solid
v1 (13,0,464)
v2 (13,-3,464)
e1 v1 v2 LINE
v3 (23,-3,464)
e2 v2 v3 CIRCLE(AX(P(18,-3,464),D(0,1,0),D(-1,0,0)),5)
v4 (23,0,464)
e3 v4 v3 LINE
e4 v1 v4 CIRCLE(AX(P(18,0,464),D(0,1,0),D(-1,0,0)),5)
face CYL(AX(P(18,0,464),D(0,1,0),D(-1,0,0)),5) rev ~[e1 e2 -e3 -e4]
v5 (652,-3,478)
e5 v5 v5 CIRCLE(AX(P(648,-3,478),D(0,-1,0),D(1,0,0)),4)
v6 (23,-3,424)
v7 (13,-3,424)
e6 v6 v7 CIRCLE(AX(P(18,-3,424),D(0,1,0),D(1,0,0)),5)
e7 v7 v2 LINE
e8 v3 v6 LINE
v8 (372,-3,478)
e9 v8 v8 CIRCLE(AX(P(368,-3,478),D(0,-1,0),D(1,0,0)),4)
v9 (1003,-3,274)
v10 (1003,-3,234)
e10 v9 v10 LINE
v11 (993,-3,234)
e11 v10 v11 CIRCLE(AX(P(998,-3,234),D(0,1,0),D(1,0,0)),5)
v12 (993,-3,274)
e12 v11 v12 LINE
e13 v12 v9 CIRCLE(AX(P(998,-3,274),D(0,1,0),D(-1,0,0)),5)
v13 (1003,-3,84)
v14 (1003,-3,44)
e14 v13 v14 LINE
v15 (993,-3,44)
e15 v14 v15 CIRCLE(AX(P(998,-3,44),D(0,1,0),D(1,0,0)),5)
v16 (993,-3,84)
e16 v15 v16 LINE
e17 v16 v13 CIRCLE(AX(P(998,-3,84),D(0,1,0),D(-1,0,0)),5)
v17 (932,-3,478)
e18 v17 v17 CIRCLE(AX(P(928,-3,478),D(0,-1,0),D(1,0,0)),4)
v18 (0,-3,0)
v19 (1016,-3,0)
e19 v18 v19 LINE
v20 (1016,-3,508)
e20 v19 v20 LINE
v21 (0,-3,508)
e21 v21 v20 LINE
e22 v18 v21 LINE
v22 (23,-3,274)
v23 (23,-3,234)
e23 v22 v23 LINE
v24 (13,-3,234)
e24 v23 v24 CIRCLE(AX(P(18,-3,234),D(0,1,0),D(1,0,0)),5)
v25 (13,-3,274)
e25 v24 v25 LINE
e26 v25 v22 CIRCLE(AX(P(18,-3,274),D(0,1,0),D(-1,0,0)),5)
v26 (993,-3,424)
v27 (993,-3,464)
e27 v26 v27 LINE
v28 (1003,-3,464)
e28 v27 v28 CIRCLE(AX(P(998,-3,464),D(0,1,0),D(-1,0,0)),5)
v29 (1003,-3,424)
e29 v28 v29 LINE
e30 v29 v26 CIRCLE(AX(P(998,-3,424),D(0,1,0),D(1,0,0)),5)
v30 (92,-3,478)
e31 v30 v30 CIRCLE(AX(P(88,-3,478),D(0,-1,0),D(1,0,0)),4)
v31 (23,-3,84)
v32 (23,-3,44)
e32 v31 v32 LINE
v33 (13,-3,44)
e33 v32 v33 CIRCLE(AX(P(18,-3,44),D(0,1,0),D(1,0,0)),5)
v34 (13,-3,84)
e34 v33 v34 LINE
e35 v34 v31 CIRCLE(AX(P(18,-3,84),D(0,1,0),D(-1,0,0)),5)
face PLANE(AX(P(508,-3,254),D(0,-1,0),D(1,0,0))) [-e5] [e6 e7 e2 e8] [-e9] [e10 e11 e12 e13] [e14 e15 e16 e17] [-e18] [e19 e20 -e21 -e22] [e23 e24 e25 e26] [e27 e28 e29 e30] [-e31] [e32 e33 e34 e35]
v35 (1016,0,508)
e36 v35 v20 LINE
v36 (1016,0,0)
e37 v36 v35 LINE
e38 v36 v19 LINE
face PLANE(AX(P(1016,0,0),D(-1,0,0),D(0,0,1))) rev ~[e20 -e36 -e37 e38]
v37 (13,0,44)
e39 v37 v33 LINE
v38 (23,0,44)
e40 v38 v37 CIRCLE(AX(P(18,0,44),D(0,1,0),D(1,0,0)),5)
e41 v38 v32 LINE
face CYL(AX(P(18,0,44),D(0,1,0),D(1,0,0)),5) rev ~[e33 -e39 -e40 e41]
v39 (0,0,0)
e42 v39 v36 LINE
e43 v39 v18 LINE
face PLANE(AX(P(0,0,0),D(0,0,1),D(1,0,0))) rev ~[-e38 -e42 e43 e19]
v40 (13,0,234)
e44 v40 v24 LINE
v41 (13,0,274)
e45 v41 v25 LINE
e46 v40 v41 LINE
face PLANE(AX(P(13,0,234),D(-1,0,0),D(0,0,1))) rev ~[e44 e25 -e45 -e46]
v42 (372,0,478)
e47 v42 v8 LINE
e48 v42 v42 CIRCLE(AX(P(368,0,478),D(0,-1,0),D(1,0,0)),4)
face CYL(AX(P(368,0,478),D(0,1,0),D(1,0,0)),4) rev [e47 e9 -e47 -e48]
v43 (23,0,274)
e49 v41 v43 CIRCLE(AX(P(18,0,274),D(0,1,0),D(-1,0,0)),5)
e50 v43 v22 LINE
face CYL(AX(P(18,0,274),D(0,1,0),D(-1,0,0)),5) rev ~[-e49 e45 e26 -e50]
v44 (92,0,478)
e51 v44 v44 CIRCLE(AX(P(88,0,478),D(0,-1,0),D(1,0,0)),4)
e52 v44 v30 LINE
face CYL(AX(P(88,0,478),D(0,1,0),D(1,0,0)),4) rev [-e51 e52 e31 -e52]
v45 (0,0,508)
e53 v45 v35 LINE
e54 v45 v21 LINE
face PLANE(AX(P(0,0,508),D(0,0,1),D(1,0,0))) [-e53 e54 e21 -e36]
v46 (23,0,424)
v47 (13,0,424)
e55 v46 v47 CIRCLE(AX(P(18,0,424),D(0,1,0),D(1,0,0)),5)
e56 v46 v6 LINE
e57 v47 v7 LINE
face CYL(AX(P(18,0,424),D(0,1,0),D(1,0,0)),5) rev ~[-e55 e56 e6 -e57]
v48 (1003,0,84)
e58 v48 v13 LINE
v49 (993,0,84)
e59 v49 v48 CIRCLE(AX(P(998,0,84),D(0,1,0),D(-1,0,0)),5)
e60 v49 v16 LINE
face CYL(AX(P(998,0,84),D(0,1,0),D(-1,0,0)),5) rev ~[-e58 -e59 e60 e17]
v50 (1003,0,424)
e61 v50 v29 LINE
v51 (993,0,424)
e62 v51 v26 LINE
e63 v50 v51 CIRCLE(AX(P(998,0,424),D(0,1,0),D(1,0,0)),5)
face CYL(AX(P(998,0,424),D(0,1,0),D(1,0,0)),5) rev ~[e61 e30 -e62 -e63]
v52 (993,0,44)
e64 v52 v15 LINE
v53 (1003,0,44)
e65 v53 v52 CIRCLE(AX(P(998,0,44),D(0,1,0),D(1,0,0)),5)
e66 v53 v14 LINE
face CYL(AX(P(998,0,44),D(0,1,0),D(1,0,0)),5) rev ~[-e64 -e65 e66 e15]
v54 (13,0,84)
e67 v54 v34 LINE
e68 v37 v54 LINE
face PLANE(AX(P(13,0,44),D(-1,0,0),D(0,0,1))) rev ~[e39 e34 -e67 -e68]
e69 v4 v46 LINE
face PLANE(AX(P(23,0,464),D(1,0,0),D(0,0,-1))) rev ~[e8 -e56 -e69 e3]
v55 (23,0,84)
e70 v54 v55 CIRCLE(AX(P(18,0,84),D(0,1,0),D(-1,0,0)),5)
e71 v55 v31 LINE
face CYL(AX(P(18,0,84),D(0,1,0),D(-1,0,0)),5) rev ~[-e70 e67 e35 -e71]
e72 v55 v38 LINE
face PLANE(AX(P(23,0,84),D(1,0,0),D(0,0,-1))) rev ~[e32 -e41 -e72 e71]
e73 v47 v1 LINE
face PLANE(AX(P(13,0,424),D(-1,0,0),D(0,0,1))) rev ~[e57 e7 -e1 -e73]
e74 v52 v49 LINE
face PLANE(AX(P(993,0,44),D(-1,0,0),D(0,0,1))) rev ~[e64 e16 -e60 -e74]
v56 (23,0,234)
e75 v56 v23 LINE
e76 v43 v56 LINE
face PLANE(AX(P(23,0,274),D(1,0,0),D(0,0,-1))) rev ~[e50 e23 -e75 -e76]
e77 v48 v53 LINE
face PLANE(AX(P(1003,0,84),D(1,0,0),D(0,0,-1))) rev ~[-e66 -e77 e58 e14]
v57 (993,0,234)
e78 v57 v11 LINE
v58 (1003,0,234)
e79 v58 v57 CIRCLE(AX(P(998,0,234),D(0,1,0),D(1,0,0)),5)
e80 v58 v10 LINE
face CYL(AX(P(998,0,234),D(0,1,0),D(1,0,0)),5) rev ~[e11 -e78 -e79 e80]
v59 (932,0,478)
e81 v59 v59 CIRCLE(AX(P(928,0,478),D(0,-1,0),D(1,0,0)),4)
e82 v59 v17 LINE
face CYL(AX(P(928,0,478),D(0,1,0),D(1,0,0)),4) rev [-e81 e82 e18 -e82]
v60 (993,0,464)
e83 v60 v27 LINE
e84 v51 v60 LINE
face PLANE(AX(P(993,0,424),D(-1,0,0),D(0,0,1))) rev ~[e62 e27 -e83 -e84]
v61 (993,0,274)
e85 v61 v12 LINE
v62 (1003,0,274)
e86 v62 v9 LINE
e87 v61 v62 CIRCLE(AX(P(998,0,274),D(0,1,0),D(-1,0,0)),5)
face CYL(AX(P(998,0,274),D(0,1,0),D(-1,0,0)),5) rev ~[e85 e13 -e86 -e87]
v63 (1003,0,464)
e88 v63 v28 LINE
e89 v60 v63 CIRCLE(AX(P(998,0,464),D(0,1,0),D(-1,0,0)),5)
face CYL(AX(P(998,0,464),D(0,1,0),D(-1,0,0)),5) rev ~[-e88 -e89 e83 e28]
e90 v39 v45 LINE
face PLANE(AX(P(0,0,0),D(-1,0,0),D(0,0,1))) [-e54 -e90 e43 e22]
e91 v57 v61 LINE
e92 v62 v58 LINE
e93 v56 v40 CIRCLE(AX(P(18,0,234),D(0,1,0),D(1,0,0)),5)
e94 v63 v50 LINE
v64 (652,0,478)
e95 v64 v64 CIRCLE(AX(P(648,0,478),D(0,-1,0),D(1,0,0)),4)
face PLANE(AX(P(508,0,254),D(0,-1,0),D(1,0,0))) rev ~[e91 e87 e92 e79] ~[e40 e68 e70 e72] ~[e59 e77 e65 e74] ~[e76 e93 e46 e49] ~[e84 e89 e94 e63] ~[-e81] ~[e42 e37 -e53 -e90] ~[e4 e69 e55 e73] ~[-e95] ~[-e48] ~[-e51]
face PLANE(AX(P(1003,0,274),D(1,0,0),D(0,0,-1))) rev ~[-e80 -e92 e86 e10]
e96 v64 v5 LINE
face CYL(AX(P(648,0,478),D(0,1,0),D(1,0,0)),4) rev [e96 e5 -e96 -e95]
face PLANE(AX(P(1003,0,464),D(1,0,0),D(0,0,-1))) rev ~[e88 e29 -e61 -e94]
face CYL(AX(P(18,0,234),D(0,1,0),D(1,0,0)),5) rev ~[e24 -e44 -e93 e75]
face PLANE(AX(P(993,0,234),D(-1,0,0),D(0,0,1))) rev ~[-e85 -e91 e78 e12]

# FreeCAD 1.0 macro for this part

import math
import FreeCAD as App
import Part
import Sketcher
Q = App.Units.Quantity


def add_polygon(sketch, points):
    """Adds a closed chain of lines whose ends are joined by coincident constraints."""
    first, n = sketch.GeometryCount, len(points)
    for a, b in zip(points, points[1:] + points[:1]):
        sketch.addGeometry(Part.LineSegment(App.Vector(*a, 0), App.Vector(*b, 0)), False)
    for i in range(n):
        sketch.addConstraint(Sketcher.Constraint("Coincident", first + i, 2, first + (i + 1) % n, 1))

doc = App.newDocument("Part")
params = doc.addObject("Spreadsheet::Sheet", "Params")
for row, (alias, value) in enumerate([
    ("sketch1_diameter", "8 mm"),
    ("sketch1_radius", "5 mm"),
    ("sketch1_width", "1016 mm"),
    ("sketch1_height", "508 mm"),
    ("sketch1_height2", "40 mm"),
    ("pad1_length", "3 mm"),
], start=1):
    params.set(f"A{row}", alias)
    params.set(f"B{row}", "=" + value)
    params.setAlias(f"B{row}", alias)

body = doc.addObject("PartDesign::Body", "Body")

# Sketch on XZ plane
sketch1 = body.newObject("Sketcher::SketchObject", "Sketch")
sketch1.AttachmentSupport = (doc.getObject("XZ_Plane"), [""])
sketch1.MapMode = "FlatFace"
add_polygon(sketch1, [(0, 508), (0, 0), (1016, 0), (1016, 508)])  # lines 0-3
sketch1.addGeometry(Part.LineSegment(App.Vector(13, 44, 0), App.Vector(13, 84, 0)), False)  # 4
sketch1.addGeometry(Part.ArcOfCircle(Part.Circle(App.Vector(18, 84, 0), App.Vector(0, 0, 1), 5), math.radians(0), math.radians(180)), False)  # 5
sketch1.addGeometry(Part.LineSegment(App.Vector(23, 84, 0), App.Vector(23, 44, 0)), False)  # 6
sketch1.addGeometry(Part.ArcOfCircle(Part.Circle(App.Vector(18, 44, 0), App.Vector(0, 0, 1), 5), math.radians(180), math.radians(360)), False)  # 7
sketch1.addGeometry(Part.LineSegment(App.Vector(13, 234, 0), App.Vector(13, 274, 0)), False)  # 8
sketch1.addGeometry(Part.ArcOfCircle(Part.Circle(App.Vector(18, 274, 0), App.Vector(0, 0, 1), 5), math.radians(0), math.radians(180)), False)  # 9
sketch1.addGeometry(Part.LineSegment(App.Vector(23, 274, 0), App.Vector(23, 234, 0)), False)  # 10
sketch1.addGeometry(Part.ArcOfCircle(Part.Circle(App.Vector(18, 234, 0), App.Vector(0, 0, 1), 5), math.radians(180), math.radians(360)), False)  # 11
sketch1.addGeometry(Part.LineSegment(App.Vector(1003, 84, 0), App.Vector(1003, 44, 0)), False)  # 12
sketch1.addGeometry(Part.ArcOfCircle(Part.Circle(App.Vector(998, 44, 0), App.Vector(0, 0, 1), 5), math.radians(180), math.radians(360)), False)  # 13
sketch1.addGeometry(Part.LineSegment(App.Vector(993, 44, 0), App.Vector(993, 84, 0)), False)  # 14
sketch1.addGeometry(Part.ArcOfCircle(Part.Circle(App.Vector(998, 84, 0), App.Vector(0, 0, 1), 5), math.radians(0), math.radians(180)), False)  # 15
sketch1.addGeometry(Part.LineSegment(App.Vector(993, 234, 0), App.Vector(993, 274, 0)), False)  # 16
sketch1.addGeometry(Part.ArcOfCircle(Part.Circle(App.Vector(998, 274, 0), App.Vector(0, 0, 1), 5), math.radians(0), math.radians(180)), False)  # 17
sketch1.addGeometry(Part.LineSegment(App.Vector(1003, 274, 0), App.Vector(1003, 234, 0)), False)  # 18
sketch1.addGeometry(Part.ArcOfCircle(Part.Circle(App.Vector(998, 234, 0), App.Vector(0, 0, 1), 5), math.radians(180), math.radians(360)), False)  # 19
sketch1.addGeometry(Part.LineSegment(App.Vector(13, 424, 0), App.Vector(13, 464, 0)), False)  # 20
sketch1.addGeometry(Part.ArcOfCircle(Part.Circle(App.Vector(18, 464, 0), App.Vector(0, 0, 1), 5), math.radians(0), math.radians(180)), False)  # 21
sketch1.addGeometry(Part.LineSegment(App.Vector(23, 464, 0), App.Vector(23, 424, 0)), False)  # 22
sketch1.addGeometry(Part.ArcOfCircle(Part.Circle(App.Vector(18, 424, 0), App.Vector(0, 0, 1), 5), math.radians(180), math.radians(360)), False)  # 23
sketch1.addGeometry(Part.Circle(App.Vector(88, 478, 0), App.Vector(0, 0, 1), 4), False)  # 24
sketch1.addGeometry(Part.Circle(App.Vector(368, 478, 0), App.Vector(0, 0, 1), 4), False)  # 25
sketch1.addGeometry(Part.Circle(App.Vector(648, 478, 0), App.Vector(0, 0, 1), 4), False)  # 26
sketch1.addGeometry(Part.LineSegment(App.Vector(993, 424, 0), App.Vector(993, 464, 0)), False)  # 27
sketch1.addGeometry(Part.ArcOfCircle(Part.Circle(App.Vector(998, 464, 0), App.Vector(0, 0, 1), 5), math.radians(0), math.radians(180)), False)  # 28
sketch1.addGeometry(Part.LineSegment(App.Vector(1003, 464, 0), App.Vector(1003, 424, 0)), False)  # 29
sketch1.addGeometry(Part.ArcOfCircle(Part.Circle(App.Vector(998, 424, 0), App.Vector(0, 0, 1), 5), math.radians(180), math.radians(360)), False)  # 30
sketch1.addGeometry(Part.Circle(App.Vector(928, 478, 0), App.Vector(0, 0, 1), 4), False)  # 31
sketch1.addConstraint(Sketcher.Constraint("Tangent", 4, 2, 5, 2))
sketch1.addConstraint(Sketcher.Constraint("Tangent", 5, 1, 6, 1))
sketch1.addConstraint(Sketcher.Constraint("Tangent", 6, 2, 7, 2))
sketch1.addConstraint(Sketcher.Constraint("Tangent", 7, 1, 4, 1))
sketch1.addConstraint(Sketcher.Constraint("Tangent", 8, 2, 9, 2))
sketch1.addConstraint(Sketcher.Constraint("Tangent", 9, 1, 10, 1))
sketch1.addConstraint(Sketcher.Constraint("Tangent", 10, 2, 11, 2))
sketch1.addConstraint(Sketcher.Constraint("Tangent", 11, 1, 8, 1))
sketch1.addConstraint(Sketcher.Constraint("Tangent", 12, 2, 13, 2))
sketch1.addConstraint(Sketcher.Constraint("Tangent", 13, 1, 14, 1))
sketch1.addConstraint(Sketcher.Constraint("Tangent", 14, 2, 15, 2))
sketch1.addConstraint(Sketcher.Constraint("Tangent", 15, 1, 12, 1))
sketch1.addConstraint(Sketcher.Constraint("Tangent", 16, 2, 17, 2))
sketch1.addConstraint(Sketcher.Constraint("Tangent", 17, 1, 18, 1))
sketch1.addConstraint(Sketcher.Constraint("Tangent", 18, 2, 19, 2))
sketch1.addConstraint(Sketcher.Constraint("Tangent", 19, 1, 16, 1))
sketch1.addConstraint(Sketcher.Constraint("Tangent", 20, 2, 21, 2))
sketch1.addConstraint(Sketcher.Constraint("Tangent", 21, 1, 22, 1))
sketch1.addConstraint(Sketcher.Constraint("Tangent", 22, 2, 23, 2))
sketch1.addConstraint(Sketcher.Constraint("Tangent", 23, 1, 20, 1))
sketch1.addConstraint(Sketcher.Constraint("Tangent", 27, 2, 28, 2))
sketch1.addConstraint(Sketcher.Constraint("Tangent", 28, 1, 29, 1))
sketch1.addConstraint(Sketcher.Constraint("Tangent", 29, 2, 30, 2))
sketch1.addConstraint(Sketcher.Constraint("Tangent", 30, 1, 27, 1))
sketch1.addConstraint(Sketcher.Constraint("Vertical", 0))
sketch1.addConstraint(Sketcher.Constraint("Horizontal", 1))
sketch1.addConstraint(Sketcher.Constraint("Vertical", 2))
sketch1.addConstraint(Sketcher.Constraint("Horizontal", 3))
sketch1.addConstraint(Sketcher.Constraint("Vertical", 4))
sketch1.addConstraint(Sketcher.Constraint("Vertical", 6))
sketch1.addConstraint(Sketcher.Constraint("Vertical", 8))
sketch1.addConstraint(Sketcher.Constraint("Vertical", 10))
sketch1.addConstraint(Sketcher.Constraint("Vertical", 12))
sketch1.addConstraint(Sketcher.Constraint("Vertical", 14))
sketch1.addConstraint(Sketcher.Constraint("Vertical", 16))
sketch1.addConstraint(Sketcher.Constraint("Vertical", 18))
sketch1.addConstraint(Sketcher.Constraint("Vertical", 20))
sketch1.addConstraint(Sketcher.Constraint("Vertical", 22))
sketch1.addConstraint(Sketcher.Constraint("Vertical", 27))
sketch1.addConstraint(Sketcher.Constraint("Vertical", 29))
sketch1.addConstraint(Sketcher.Constraint("Coincident", 0, 2, -1, 1))
sketch1.addConstraint(Sketcher.Constraint("Equal", 7, 9))
sketch1.addConstraint(Sketcher.Constraint("Equal", 11, 13))
sketch1.addConstraint(Sketcher.Constraint("Equal", 15, 17))
sketch1.addConstraint(Sketcher.Constraint("Equal", 19, 21))
sketch1.addConstraint(Sketcher.Constraint("Equal", 24, 25))
sketch1.addConstraint(Sketcher.Constraint("Equal", 25, 26))
sketch1.addConstraint(Sketcher.Constraint("Equal", 23, 28))
sketch1.addConstraint(Sketcher.Constraint("Equal", 26, 31))
sketch1.addConstraint(Sketcher.Constraint("Horizontal", 7, 3, 13, 3))
sketch1.addConstraint(Sketcher.Constraint("Horizontal", 5, 3, 15, 3))
sketch1.addConstraint(Sketcher.Constraint("Horizontal", 9, 3, 17, 3))
sketch1.addConstraint(Sketcher.Constraint("Horizontal", 11, 3, 19, 3))
sketch1.addConstraint(Sketcher.Constraint("Horizontal", 24, 3, 25, 3))
sketch1.addConstraint(Sketcher.Constraint("Horizontal", 25, 3, 26, 3))
sketch1.addConstraint(Sketcher.Constraint("Horizontal", 21, 3, 28, 3))
sketch1.addConstraint(Sketcher.Constraint("Horizontal", 23, 3, 30, 3))
sketch1.addConstraint(Sketcher.Constraint("Horizontal", 26, 3, 31, 3))
sketch1.addConstraint(Sketcher.Constraint("Vertical", 7, 3, 9, 3))
sketch1.addConstraint(Sketcher.Constraint("Vertical", 15, 3, 17, 3))
sketch1.addConstraint(Sketcher.Constraint("Vertical", 11, 3, 21, 3))
sketch1.addConstraint(Sketcher.Constraint("Vertical", 19, 3, 28, 3))
sketch1.addConstraint(Sketcher.Constraint("Equal", 6, 8))
sketch1.addConstraint(Sketcher.Constraint("Equal", 18, 20))
sketch1.addConstraint(Sketcher.Constraint("Diameter", 24, Q("8 mm")))
sketch1.addConstraint(Sketcher.Constraint("Radius", 5, Q("5 mm")))
sketch1.addConstraint(Sketcher.Constraint("DistanceX", 1, 1, 1, 2, Q("1016 mm")))
sketch1.addConstraint(Sketcher.Constraint("DistanceY", 0, 2, 0, 1, Q("508 mm")))
sketch1.addConstraint(Sketcher.Constraint("DistanceY", 4, 1, 4, 2, Q("40 mm")))
sketch1.addConstraint(Sketcher.Constraint("DistanceX", -1, 1, 5, 3, Q("18 mm")))
sketch1.addConstraint(Sketcher.Constraint("DistanceY", -1, 1, 5, 3, Q("84 mm")))
sketch1.addConstraint(Sketcher.Constraint("DistanceY", -1, 1, 9, 3, Q("274 mm")))
sketch1.addConstraint(Sketcher.Constraint("DistanceX", -1, 1, 13, 3, Q("998 mm")))
sketch1.addConstraint(Sketcher.Constraint("DistanceY", -1, 1, 21, 3, Q("464 mm")))
sketch1.addConstraint(Sketcher.Constraint("DistanceX", -1, 1, 24, 3, Q("88 mm")))
sketch1.addConstraint(Sketcher.Constraint("DistanceY", -1, 1, 24, 3, Q("478 mm")))
sketch1.addConstraint(Sketcher.Constraint("DistanceX", -1, 1, 25, 3, Q("368 mm")))
sketch1.addConstraint(Sketcher.Constraint("DistanceX", -1, 1, 26, 3, Q("648 mm")))
sketch1.addConstraint(Sketcher.Constraint("DistanceX", -1, 1, 31, 3, Q("928 mm")))
sketch1.setExpression("Constraints[68]", "Params.sketch1_diameter")
sketch1.setExpression("Constraints[69]", "Params.sketch1_radius")
sketch1.setExpression("Constraints[70]", "Params.sketch1_width")
sketch1.setExpression("Constraints[71]", "Params.sketch1_height")
sketch1.setExpression("Constraints[72]", "Params.sketch1_height2")
pad1 = body.newObject("PartDesign::Pad", "Pad")
pad1.Profile = sketch1
pad1.setExpression("Length", "Params.pad1_length")

doc.recompute()
